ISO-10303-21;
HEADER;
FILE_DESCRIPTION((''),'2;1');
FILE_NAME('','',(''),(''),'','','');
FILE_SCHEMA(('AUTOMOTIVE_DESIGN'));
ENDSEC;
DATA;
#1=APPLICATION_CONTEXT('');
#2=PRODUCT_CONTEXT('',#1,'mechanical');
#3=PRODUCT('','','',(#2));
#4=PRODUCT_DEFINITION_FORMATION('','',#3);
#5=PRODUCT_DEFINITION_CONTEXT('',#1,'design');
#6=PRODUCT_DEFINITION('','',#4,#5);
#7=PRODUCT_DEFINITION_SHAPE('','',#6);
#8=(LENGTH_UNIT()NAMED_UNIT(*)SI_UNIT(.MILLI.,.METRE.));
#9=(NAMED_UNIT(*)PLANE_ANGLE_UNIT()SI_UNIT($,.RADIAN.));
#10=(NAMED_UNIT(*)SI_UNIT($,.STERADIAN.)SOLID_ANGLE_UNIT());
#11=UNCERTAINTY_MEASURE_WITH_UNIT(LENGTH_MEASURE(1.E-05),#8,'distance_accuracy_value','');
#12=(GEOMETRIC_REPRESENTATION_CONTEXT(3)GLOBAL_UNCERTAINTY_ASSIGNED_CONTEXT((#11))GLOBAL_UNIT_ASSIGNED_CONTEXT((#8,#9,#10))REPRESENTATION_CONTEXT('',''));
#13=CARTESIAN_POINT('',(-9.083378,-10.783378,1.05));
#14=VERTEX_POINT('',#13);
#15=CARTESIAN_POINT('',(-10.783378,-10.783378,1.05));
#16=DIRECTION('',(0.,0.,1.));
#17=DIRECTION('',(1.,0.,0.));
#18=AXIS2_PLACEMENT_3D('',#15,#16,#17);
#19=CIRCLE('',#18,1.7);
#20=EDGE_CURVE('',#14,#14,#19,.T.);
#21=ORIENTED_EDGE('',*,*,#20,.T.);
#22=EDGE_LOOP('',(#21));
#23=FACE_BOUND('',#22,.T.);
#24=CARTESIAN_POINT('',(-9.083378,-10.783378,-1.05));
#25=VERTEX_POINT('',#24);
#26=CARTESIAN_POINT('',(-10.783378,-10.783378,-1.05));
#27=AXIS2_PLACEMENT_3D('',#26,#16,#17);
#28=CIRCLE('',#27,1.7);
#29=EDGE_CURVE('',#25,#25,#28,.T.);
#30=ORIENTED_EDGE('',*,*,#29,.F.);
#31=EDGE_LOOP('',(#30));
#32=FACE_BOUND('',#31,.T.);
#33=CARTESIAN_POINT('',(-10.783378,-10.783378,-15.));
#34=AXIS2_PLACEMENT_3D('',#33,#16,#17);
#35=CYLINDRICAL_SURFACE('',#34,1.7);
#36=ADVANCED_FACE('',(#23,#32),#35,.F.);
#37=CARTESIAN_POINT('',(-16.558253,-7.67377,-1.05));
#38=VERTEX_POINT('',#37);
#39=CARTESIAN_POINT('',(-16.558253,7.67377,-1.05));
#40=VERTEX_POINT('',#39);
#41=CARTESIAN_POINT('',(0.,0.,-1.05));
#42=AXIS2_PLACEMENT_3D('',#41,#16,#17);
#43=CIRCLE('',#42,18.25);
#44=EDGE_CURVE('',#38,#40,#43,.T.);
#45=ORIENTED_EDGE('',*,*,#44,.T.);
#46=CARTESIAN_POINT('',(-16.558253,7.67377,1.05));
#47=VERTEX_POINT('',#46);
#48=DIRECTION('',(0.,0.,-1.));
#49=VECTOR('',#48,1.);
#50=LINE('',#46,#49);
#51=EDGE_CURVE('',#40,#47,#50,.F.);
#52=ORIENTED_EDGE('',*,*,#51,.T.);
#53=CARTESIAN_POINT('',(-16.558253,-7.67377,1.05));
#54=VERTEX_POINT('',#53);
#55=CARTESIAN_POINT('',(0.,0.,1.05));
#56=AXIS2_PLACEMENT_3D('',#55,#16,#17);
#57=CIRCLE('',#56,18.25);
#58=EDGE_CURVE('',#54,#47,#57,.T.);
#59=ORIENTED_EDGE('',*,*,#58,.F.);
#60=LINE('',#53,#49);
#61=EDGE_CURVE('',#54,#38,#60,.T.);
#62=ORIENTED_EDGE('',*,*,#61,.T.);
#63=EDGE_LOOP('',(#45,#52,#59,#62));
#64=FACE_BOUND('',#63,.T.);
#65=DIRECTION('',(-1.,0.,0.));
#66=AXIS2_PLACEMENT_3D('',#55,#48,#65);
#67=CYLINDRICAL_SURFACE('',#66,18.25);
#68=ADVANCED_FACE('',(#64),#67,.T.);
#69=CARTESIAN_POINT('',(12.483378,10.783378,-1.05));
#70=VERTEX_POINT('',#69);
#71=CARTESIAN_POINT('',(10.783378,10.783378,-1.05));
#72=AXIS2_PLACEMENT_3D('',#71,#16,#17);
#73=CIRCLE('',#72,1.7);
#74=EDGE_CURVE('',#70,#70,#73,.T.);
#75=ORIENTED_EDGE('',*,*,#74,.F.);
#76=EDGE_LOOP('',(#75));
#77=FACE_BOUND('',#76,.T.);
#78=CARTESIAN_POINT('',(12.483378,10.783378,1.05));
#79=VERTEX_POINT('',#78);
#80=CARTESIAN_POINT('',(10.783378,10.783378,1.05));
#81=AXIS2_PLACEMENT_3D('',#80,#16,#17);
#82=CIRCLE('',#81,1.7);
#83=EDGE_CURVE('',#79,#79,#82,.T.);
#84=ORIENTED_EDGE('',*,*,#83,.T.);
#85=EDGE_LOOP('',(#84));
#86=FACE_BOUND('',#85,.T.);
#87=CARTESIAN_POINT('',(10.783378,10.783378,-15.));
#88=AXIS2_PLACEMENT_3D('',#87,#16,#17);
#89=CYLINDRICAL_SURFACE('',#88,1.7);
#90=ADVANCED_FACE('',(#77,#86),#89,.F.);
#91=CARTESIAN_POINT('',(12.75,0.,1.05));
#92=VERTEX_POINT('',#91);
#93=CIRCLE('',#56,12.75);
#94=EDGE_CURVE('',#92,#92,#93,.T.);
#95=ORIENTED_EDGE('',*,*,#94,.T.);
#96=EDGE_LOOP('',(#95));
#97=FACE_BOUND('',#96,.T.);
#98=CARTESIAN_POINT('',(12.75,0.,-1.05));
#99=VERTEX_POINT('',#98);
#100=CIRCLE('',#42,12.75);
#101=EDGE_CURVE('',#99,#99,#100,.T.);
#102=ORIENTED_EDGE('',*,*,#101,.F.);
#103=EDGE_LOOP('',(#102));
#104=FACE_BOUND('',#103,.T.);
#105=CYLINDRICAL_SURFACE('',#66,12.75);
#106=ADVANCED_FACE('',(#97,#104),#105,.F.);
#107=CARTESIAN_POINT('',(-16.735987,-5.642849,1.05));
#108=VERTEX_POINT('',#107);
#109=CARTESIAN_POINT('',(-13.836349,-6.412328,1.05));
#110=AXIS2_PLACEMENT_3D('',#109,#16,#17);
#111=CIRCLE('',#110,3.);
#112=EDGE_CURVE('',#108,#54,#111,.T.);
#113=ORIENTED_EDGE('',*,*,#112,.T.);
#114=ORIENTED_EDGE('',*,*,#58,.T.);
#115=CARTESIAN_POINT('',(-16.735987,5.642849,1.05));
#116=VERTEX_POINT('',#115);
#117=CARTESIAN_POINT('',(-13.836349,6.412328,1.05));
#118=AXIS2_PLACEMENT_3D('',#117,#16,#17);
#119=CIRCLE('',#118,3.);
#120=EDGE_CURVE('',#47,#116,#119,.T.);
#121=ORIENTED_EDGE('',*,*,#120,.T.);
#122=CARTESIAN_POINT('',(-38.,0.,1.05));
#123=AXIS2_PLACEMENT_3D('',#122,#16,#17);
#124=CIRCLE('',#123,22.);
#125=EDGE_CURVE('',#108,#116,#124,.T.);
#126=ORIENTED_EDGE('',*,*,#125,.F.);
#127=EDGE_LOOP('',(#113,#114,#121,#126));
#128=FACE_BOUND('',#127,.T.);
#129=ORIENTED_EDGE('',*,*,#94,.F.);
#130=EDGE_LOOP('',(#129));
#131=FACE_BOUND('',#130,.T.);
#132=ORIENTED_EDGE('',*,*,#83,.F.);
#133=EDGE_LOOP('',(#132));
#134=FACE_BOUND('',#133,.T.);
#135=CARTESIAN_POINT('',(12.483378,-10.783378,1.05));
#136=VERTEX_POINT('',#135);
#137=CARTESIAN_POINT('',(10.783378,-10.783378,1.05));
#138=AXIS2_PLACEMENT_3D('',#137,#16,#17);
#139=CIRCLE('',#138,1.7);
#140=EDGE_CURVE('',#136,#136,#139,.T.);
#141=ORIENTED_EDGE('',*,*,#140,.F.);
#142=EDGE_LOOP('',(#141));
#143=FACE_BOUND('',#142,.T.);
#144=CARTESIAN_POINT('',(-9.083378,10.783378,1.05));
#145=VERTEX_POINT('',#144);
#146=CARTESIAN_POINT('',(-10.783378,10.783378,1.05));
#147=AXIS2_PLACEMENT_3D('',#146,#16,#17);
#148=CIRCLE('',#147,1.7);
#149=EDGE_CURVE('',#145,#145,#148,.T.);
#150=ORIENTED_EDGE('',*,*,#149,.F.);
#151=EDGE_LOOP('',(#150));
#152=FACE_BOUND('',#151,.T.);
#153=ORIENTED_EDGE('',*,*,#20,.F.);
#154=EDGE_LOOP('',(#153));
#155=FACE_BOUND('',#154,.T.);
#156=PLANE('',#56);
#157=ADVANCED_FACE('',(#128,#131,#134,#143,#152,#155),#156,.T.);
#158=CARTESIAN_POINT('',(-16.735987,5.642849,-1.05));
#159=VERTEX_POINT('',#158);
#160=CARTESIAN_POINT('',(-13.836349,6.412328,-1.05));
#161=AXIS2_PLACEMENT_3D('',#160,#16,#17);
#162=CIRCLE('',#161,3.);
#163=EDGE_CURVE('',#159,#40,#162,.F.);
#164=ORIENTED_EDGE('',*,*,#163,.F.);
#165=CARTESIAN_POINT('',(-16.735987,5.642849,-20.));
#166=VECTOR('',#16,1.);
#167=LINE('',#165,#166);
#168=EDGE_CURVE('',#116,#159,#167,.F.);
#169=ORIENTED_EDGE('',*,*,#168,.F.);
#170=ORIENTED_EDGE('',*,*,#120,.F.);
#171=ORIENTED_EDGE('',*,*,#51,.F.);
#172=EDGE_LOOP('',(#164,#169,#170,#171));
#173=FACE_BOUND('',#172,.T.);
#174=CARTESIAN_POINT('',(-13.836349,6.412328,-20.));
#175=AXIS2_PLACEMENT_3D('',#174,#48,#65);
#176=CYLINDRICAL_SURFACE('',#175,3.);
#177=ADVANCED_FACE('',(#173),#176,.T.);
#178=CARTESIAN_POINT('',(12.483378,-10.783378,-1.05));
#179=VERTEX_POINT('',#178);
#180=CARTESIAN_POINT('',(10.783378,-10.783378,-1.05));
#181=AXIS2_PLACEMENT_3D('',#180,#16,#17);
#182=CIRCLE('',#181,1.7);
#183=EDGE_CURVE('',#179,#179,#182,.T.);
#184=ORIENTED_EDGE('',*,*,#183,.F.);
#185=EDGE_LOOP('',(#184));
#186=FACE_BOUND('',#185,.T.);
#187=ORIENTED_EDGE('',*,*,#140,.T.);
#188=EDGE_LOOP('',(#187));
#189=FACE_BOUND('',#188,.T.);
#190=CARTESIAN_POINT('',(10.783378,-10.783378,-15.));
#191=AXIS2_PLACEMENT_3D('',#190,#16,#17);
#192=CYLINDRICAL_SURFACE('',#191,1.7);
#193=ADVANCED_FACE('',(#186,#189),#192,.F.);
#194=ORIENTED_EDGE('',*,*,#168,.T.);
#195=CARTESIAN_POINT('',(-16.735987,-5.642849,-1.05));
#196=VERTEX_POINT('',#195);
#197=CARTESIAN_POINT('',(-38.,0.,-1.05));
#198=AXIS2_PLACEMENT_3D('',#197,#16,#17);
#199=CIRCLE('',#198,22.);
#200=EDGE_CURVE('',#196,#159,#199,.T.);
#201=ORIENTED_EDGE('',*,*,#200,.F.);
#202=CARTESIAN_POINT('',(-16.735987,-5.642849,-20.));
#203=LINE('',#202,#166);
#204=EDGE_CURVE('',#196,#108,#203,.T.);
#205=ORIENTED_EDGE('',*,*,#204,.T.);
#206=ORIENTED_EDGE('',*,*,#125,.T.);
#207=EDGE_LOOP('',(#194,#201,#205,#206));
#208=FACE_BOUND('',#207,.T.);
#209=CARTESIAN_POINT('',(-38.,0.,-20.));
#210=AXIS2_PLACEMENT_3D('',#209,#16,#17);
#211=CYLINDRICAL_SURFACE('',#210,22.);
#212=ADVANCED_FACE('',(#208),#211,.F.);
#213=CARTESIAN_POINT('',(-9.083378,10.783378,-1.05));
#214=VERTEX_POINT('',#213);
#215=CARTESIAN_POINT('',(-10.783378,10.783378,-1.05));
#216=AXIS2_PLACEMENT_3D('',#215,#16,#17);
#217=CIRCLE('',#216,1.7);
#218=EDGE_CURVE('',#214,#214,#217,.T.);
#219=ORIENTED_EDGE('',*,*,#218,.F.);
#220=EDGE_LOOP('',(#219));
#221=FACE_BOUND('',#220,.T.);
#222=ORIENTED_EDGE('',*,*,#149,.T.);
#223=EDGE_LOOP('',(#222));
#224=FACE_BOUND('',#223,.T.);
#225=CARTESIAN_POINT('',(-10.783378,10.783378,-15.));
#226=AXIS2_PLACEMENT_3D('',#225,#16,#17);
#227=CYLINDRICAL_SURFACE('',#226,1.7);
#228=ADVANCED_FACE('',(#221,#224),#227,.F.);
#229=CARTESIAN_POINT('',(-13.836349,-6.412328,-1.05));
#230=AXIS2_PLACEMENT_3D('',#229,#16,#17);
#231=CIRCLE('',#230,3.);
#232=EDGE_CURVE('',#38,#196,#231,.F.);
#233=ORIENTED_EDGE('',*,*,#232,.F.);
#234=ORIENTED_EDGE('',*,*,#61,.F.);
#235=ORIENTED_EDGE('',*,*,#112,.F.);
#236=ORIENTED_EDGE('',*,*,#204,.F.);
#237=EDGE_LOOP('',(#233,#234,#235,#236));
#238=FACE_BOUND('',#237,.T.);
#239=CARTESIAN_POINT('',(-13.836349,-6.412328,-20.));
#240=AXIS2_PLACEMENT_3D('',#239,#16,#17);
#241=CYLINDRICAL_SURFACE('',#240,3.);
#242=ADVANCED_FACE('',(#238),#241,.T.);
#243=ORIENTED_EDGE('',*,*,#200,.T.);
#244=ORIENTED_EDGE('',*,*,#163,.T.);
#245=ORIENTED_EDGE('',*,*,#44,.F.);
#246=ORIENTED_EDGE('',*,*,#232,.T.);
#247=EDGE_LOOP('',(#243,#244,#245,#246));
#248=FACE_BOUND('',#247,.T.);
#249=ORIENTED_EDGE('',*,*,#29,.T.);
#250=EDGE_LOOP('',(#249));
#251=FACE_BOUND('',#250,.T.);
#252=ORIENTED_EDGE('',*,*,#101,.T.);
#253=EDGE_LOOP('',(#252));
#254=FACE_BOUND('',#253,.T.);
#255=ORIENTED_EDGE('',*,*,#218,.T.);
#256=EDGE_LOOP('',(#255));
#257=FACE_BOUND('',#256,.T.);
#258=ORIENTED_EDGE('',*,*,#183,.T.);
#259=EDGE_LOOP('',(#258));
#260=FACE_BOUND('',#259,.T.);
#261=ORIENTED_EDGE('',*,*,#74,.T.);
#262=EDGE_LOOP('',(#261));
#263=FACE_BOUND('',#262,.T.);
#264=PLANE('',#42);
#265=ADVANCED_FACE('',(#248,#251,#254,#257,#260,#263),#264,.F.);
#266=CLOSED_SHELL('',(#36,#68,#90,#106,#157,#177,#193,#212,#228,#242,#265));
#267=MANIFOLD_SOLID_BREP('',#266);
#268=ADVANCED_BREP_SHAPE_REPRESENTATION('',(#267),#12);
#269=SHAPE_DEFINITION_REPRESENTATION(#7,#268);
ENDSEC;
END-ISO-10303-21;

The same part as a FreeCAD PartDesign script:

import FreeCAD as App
import Part
import Sketcher

V = App.Vector
Q = App.Units.Quantity


def edges_at(feature, points):
    """Names of the edges that pass closest to the given points."""
    edges = feature.Shape.Edges
    near = lambda p: min(range(len(edges)), key=lambda i: edges[i].distToShape(Part.Vertex(*p))[0])
    return sorted({f"Edge{near(p) + 1}" for p in points})

doc = App.newDocument("Part")
body = doc.addObject("PartDesign::Body", "Body")

sketch1 = doc.addObject("Sketcher::SketchObject", "Sketch")
body.addObject(sketch1)
sketch1.AttachmentSupport = (doc.XY_Plane, [""])
sketch1.MapMode = "FlatFace"
sketch1.addGeometry(Part.Circle(V(0, 0, 0), V(0, 0, 1), 18), False)
sketch1.addGeometry(Part.Circle(V(0, 0, 0), V(0, 0, 1), 13), False)
sketch1.addConstraint(Sketcher.Constraint("Coincident", 0, 3, -1, 1))
sketch1.addConstraint(Sketcher.Constraint("Coincident", 1, 3, -1, 1))
sketch1.addConstraint(Sketcher.Constraint("Diameter", 0, Q("36.5 mm")))
sketch1.addConstraint(Sketcher.Constraint("Diameter", 1, Q("25.5 mm")))
pad1 = doc.addObject("PartDesign::Pad", "Pad")
body.addObject(pad1)
pad1.Profile = sketch1
pad1.Length = 2.1
pad1.Midplane = True

sketch2 = doc.addObject("Sketcher::SketchObject", "Sketch001")
body.addObject(sketch2)
sketch2.AttachmentSupport = (doc.XY_Plane, [""])
sketch2.MapMode = "FlatFace"
sketch2.AttachmentOffset = App.Placement(V(0, 0, 1.05), App.Rotation())
sketch2.addGeometry(Part.Circle(V(-38, 0, 0), V(0, 0, 1), 22), False)
sketch2.addConstraint(Sketcher.Constraint("PointOnObject", 0, 3, -1))
sketch2.addConstraint(Sketcher.Constraint("Diameter", 0, Q("44 mm")))
sketch2.addConstraint(Sketcher.Constraint("DistanceX", 0, 3, -1, 1, Q("38 mm")))
pocket1 = doc.addObject("PartDesign::Pocket", "Pocket")
body.addObject(pocket1)
pocket1.Profile = sketch2
pocket1.Length = 42.1
pocket1.Midplane = True

sketch3 = doc.addObject("Sketcher::SketchObject", "Sketch002")
body.addObject(sketch3)
sketch3.AttachmentSupport = (doc.XY_Plane, [""])
sketch3.MapMode = "FlatFace"
sketch3.AttachmentOffset = App.Placement(V(0, 0, 1.05), App.Rotation())
sketch3.addGeometry(Part.Circle(V(10.8, 10.8, 0), V(0, 0, 1), 1.7), False)
sketch3.addGeometry(Part.Circle(V(10.8, -10.8, 0), V(0, 0, 1), 1.7), False)
sketch3.addGeometry(Part.Circle(V(-10.8, -10.8, 0), V(0, 0, 1), 1.7), False)
sketch3.addGeometry(Part.Circle(V(-10.8, 10.8, 0), V(0, 0, 1), 1.7), False)
sketch3.addConstraint(Sketcher.Constraint("Equal", 0, 1))
sketch3.addConstraint(Sketcher.Constraint("Equal", 1, 2))
sketch3.addConstraint(Sketcher.Constraint("Equal", 2, 3))
sketch3.addConstraint(Sketcher.Constraint("Symmetric", 0, 3, 2, 3, -1, 1))
sketch3.addConstraint(Sketcher.Constraint("Symmetric", 1, 3, 3, 3, -1, 1))
sketch3.addConstraint(Sketcher.Constraint("Symmetric", 1, 3, 2, 3, -2))
sketch3.addConstraint(Sketcher.Constraint("Diameter", 0, Q("3.4 mm")))
sketch3.addConstraint(Sketcher.Constraint("DistanceX", -1, 1, 0, 3, Q("10.783378 mm")))
sketch3.addConstraint(Sketcher.Constraint("DistanceY", -1, 1, 0, 3, Q("10.783378 mm")))
pocket2 = doc.addObject("PartDesign::Pocket", "Pocket001")
body.addObject(pocket2)
pocket2.Profile = sketch3
pocket2.Length = 32.1
pocket2.Midplane = True
doc.recompute()

fillet = doc.addObject("PartDesign::Fillet", "Fillet")
body.addObject(fillet)
fillet.Base = (pocket2, edges_at(pocket2, [(-17.014, -6.602, 0), (-17.014, 6.602, 0)]))
fillet.Radius = 3

doc.recompute()
